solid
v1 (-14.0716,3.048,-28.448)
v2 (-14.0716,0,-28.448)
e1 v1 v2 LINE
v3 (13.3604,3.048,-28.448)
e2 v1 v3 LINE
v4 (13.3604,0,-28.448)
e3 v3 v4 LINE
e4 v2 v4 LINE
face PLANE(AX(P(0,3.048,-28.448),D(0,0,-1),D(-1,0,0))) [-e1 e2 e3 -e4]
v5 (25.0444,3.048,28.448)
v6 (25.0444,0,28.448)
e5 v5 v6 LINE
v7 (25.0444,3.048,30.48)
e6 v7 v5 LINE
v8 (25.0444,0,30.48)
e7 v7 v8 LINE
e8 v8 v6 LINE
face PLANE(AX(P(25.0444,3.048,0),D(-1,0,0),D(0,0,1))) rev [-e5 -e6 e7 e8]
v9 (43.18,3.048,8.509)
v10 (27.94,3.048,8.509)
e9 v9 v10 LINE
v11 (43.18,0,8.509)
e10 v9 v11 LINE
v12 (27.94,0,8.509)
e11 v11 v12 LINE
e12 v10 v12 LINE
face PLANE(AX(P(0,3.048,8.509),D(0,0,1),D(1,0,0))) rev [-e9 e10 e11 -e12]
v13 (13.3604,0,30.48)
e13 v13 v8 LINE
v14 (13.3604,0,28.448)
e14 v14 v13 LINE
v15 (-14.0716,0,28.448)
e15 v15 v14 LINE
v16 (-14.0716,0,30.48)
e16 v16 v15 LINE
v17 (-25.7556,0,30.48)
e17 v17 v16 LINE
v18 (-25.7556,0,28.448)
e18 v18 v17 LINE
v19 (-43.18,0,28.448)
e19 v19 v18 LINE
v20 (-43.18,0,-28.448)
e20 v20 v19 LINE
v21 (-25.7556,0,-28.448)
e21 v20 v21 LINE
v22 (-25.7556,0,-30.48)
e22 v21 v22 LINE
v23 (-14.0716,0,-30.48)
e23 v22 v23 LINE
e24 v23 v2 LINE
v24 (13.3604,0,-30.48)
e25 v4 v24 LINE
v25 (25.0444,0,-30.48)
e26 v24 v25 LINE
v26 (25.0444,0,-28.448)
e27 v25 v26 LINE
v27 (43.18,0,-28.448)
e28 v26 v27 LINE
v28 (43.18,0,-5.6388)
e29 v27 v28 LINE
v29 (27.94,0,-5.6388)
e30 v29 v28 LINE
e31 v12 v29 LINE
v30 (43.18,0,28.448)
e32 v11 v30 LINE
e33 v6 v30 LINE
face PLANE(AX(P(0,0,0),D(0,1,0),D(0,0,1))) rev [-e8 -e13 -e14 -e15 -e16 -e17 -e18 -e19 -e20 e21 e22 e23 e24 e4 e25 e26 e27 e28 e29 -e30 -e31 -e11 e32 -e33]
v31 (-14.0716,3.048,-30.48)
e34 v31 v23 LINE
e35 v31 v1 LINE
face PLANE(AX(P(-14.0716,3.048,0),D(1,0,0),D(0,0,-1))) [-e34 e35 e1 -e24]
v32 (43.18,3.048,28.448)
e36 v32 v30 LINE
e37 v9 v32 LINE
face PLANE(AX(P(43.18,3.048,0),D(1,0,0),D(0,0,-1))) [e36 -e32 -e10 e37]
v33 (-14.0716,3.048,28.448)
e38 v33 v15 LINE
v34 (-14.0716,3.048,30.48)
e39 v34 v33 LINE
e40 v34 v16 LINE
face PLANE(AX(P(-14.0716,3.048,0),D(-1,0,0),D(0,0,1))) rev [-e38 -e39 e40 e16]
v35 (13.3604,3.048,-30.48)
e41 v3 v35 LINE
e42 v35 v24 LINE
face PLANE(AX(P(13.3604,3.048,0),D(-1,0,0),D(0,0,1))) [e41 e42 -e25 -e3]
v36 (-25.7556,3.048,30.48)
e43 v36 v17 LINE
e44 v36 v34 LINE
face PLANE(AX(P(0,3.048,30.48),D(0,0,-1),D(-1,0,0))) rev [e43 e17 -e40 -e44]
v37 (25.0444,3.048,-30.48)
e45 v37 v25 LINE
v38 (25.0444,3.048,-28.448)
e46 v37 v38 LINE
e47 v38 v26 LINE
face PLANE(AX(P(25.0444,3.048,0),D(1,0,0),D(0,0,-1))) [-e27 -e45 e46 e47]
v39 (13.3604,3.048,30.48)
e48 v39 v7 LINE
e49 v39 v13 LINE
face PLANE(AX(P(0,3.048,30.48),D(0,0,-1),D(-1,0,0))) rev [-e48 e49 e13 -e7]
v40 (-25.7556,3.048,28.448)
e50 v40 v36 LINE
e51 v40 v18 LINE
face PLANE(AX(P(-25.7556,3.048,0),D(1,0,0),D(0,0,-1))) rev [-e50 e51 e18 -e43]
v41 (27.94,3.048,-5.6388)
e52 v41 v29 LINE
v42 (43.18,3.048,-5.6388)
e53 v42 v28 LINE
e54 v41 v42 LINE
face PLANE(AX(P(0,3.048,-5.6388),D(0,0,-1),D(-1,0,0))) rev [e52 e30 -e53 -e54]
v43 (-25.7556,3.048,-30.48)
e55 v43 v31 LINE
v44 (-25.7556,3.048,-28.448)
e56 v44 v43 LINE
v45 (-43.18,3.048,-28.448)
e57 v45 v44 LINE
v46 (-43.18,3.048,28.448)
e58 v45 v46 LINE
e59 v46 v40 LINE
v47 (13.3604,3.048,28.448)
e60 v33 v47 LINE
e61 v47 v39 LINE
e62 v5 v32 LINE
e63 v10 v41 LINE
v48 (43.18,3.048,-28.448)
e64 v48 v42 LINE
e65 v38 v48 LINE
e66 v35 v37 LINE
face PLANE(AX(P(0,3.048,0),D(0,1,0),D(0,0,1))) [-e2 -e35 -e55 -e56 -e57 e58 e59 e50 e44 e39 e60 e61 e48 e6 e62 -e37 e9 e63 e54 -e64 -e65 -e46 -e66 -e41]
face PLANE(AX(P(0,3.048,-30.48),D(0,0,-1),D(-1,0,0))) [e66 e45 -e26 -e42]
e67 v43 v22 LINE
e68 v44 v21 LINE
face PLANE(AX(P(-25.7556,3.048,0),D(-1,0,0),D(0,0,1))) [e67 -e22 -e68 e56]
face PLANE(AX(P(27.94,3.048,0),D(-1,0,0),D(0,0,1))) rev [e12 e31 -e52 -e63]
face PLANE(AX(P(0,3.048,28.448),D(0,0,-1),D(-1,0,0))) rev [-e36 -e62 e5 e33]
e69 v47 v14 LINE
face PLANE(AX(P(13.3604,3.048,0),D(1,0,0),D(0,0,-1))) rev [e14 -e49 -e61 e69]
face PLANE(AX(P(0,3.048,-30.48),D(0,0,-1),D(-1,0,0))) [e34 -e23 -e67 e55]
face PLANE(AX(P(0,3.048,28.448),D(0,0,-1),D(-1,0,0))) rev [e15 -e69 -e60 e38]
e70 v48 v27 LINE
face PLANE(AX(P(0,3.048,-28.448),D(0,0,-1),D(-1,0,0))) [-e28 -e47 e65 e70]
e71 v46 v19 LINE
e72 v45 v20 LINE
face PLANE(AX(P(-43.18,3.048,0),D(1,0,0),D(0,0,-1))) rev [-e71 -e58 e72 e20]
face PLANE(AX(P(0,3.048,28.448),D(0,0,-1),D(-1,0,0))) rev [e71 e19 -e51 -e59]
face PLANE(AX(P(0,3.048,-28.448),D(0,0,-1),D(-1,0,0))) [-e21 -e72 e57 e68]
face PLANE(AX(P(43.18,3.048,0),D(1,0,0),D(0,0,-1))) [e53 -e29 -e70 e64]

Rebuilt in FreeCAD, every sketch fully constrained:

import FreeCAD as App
import Part
import Sketcher
from FreeCAD import Vector
Q = App.Units.Quantity

doc = App.newDocument("Part")
body = doc.addObject("PartDesign::Body", "Body")

sketch1 = doc.addObject("Sketcher::SketchObject", "Sketch")
body.addObject(sketch1)
sketch1.AttachmentSupport = (doc.XZ_Plane, [""])
sketch1.MapMode = "FlatFace"
sketch1.addGeometry([
    Part.LineSegment(Vector(-25.7556, 28.448, 0), Vector(-25.7556, 30.48, 0)),
    Part.LineSegment(Vector(-25.7556, 30.48, 0), Vector(-14.0716, 30.48, 0)),
    Part.LineSegment(Vector(-14.0716, 30.48, 0), Vector(-14.0716, 28.448, 0)),
    Part.LineSegment(Vector(-14.0716, 28.448, 0), Vector(13.3604, 28.448, 0)),
    Part.LineSegment(Vector(13.3604, 28.448, 0), Vector(13.3604, 30.48, 0)),
    Part.LineSegment(Vector(13.3604, 30.48, 0), Vector(25.0444, 30.48, 0)),
    Part.LineSegment(Vector(25.0444, 30.48, 0), Vector(25.0444, 28.448, 0)),
    Part.LineSegment(Vector(25.0444, 28.448, 0), Vector(43.18, 28.448, 0)),
    Part.LineSegment(Vector(43.18, 28.448, 0), Vector(43.18, 8.509, 0)),
    Part.LineSegment(Vector(43.18, 8.509, 0), Vector(27.94, 8.509, 0)),
    Part.LineSegment(Vector(27.94, 8.509, 0), Vector(27.94, -5.6388, 0)),
    Part.LineSegment(Vector(27.94, -5.6388, 0), Vector(43.18, -5.6388, 0)),
    Part.LineSegment(Vector(43.18, -5.6388, 0), Vector(43.18, -28.448, 0)),
    Part.LineSegment(Vector(43.18, -28.448, 0), Vector(25.0444, -28.448, 0)),
    Part.LineSegment(Vector(25.0444, -28.448, 0), Vector(25.0444, -30.48, 0)),
    Part.LineSegment(Vector(25.0444, -30.48, 0), Vector(13.3604, -30.48, 0)),
    Part.LineSegment(Vector(13.3604, -30.48, 0), Vector(13.3604, -28.448, 0)),
    Part.LineSegment(Vector(13.3604, -28.448, 0), Vector(-14.0716, -28.448, 0)),
    Part.LineSegment(Vector(-14.0716, -28.448, 0), Vector(-14.0716, -30.48, 0)),
    Part.LineSegment(Vector(-14.0716, -30.48, 0), Vector(-25.7556, -30.48, 0)),
    Part.LineSegment(Vector(-25.7556, -30.48, 0), Vector(-25.7556, -28.448, 0)),
    Part.LineSegment(Vector(-25.7556, -28.448, 0), Vector(-43.18, -28.448, 0)),
    Part.LineSegment(Vector(-43.18, -28.448, 0), Vector(-43.18, 28.448, 0)),
    Part.LineSegment(Vector(-43.18, 28.448, 0), Vector(-25.7556, 28.448, 0)),
], False)
sketch1.addConstraint([
    Sketcher.Constraint("Coincident", 0, 2, 1, 1),
    Sketcher.Constraint("Coincident", 1, 2, 2, 1),
    Sketcher.Constraint("Coincident", 2, 2, 3, 1),
    Sketcher.Constraint("Coincident", 3, 2, 4, 1),
    Sketcher.Constraint("Coincident", 4, 2, 5, 1),
    Sketcher.Constraint("Coincident", 5, 2, 6, 1),
    Sketcher.Constraint("Coincident", 6, 2, 7, 1),
    Sketcher.Constraint("Coincident", 7, 2, 8, 1),
    Sketcher.Constraint("Coincident", 8, 2, 9, 1),
    Sketcher.Constraint("Coincident", 9, 2, 10, 1),
    Sketcher.Constraint("Coincident", 10, 2, 11, 1),
    Sketcher.Constraint("Coincident", 11, 2, 12, 1),
    Sketcher.Constraint("Coincident", 12, 2, 13, 1),
    Sketcher.Constraint("Coincident", 13, 2, 14, 1),
    Sketcher.Constraint("Coincident", 14, 2, 15, 1),
    Sketcher.Constraint("Coincident", 15, 2, 16, 1),
    Sketcher.Constraint("Coincident", 16, 2, 17, 1),
    Sketcher.Constraint("Coincident", 17, 2, 18, 1),
    Sketcher.Constraint("Coincident", 18, 2, 19, 1),
    Sketcher.Constraint("Coincident", 19, 2, 20, 1),
    Sketcher.Constraint("Coincident", 20, 2, 21, 1),
    Sketcher.Constraint("Coincident", 21, 2, 22, 1),
    Sketcher.Constraint("Coincident", 22, 2, 23, 1),
    Sketcher.Constraint("Coincident", 23, 2, 0, 1),
    Sketcher.Constraint("Vertical", 0),
    Sketcher.Constraint("Horizontal", 1),
    Sketcher.Constraint("Vertical", 2),
    Sketcher.Constraint("Horizontal", 3),
    Sketcher.Constraint("Vertical", 4),
    Sketcher.Constraint("Horizontal", 5),
    Sketcher.Constraint("Vertical", 6),
    Sketcher.Constraint("Horizontal", 7),
    Sketcher.Constraint("Vertical", 8),
    Sketcher.Constraint("Horizontal", 9),
    Sketcher.Constraint("Vertical", 10),
    Sketcher.Constraint("Horizontal", 11),
    Sketcher.Constraint("Vertical", 12),
    Sketcher.Constraint("Horizontal", 13),
    Sketcher.Constraint("Vertical", 14),
    Sketcher.Constraint("Horizontal", 15),
    Sketcher.Constraint("Vertical", 16),
    Sketcher.Constraint("Horizontal", 17),
    Sketcher.Constraint("Vertical", 18),
    Sketcher.Constraint("Horizontal", 19),
    Sketcher.Constraint("Vertical", 20),
    Sketcher.Constraint("Horizontal", 21),
    Sketcher.Constraint("Vertical", 22),
    Sketcher.Constraint("Horizontal", 23),
    Sketcher.Constraint("Symmetric", 7, 2, 21, 2, -1, 1),
    Sketcher.Constraint("Symmetric", 12, 2, 22, 2, -1, 1),
    Sketcher.Constraint("Symmetric", 6, 2, 13, 2, -1),
    Sketcher.Constraint("Symmetric", 4, 2, 15, 2, -1),
    Sketcher.Constraint("Symmetric", 2, 2, 17, 2, -1),
    Sketcher.Constraint("Symmetric", 0, 2, 19, 2, -1),
    Sketcher.Constraint("Horizontal", 1, 2, 4, 2),
    Sketcher.Constraint("Horizontal", 3, 2, 6, 2),
    Sketcher.Constraint("Equal", 1, 5),
    Sketcher.Constraint("DistanceX", 9, 2, 9, 1, Q("0.6 in")),
    Sketcher.Constraint("DistanceX", 0, 2, 5, 2, Q("2 in")),
    Sketcher.Constraint("DistanceX", 1, 1, 1, 2, Q("0.46 in")),
    Sketcher.Constraint("DistanceY", 0, 1, 0, 2, Q("0.08 in")),
    Sketcher.Constraint("DistanceY", 22, 1, 22, 2, Q("2.24 in")),
    Sketcher.Constraint("DistanceX", -1, 1, 7, 2, Q("1.7 in")),
    Sketcher.Constraint("DistanceX", 7, 1, 7, 2, Q("0.714 in")),
    Sketcher.Constraint("DistanceY", 8, 2, 8, 1, Q("0.785 in")),
    Sketcher.Constraint("DistanceY", 10, 2, 10, 1, Q("0.557 in")),
])
pad1 = doc.addObject("PartDesign::Pad", "Pad")
body.addObject(pad1)
pad1.Profile = sketch1
pad1.Length = Q("0.12 in")
pad1.Reversed = True

doc.recompute()
